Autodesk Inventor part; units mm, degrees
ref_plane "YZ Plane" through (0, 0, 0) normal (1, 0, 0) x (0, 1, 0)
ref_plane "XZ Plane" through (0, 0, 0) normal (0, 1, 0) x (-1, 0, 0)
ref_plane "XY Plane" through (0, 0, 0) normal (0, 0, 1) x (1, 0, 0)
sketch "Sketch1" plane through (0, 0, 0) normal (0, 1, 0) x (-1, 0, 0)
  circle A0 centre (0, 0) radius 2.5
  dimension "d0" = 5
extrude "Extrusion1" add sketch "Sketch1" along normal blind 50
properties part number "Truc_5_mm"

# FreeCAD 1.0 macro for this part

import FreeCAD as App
import Part
import Sketcher
from FreeCAD import Vector

doc = App.newDocument("Part")
body = doc.addObject("PartDesign::Body", "Body")

sketch1 = body.newObject("Sketcher::SketchObject", "Sketch")
sketch1.AttachmentSupport = (doc.getObject("XZ_Plane"), [""])
sketch1.MapMode = "FlatFace"
sketch1.addGeometry(Part.Circle(Vector(0, 0, 0), Vector(0, 0, 1), 2.5), False)
sketch1.addConstraint([
    Sketcher.Constraint("Coincident", 0, 3, -1, 1),
    Sketcher.Constraint("Diameter", 0, 5.0),
])
pad1 = body.newObject("PartDesign::Pad", "Pad")
pad1.Profile = sketch1
pad1.Length = 50
pad1.Reversed = True

doc.recompute()
